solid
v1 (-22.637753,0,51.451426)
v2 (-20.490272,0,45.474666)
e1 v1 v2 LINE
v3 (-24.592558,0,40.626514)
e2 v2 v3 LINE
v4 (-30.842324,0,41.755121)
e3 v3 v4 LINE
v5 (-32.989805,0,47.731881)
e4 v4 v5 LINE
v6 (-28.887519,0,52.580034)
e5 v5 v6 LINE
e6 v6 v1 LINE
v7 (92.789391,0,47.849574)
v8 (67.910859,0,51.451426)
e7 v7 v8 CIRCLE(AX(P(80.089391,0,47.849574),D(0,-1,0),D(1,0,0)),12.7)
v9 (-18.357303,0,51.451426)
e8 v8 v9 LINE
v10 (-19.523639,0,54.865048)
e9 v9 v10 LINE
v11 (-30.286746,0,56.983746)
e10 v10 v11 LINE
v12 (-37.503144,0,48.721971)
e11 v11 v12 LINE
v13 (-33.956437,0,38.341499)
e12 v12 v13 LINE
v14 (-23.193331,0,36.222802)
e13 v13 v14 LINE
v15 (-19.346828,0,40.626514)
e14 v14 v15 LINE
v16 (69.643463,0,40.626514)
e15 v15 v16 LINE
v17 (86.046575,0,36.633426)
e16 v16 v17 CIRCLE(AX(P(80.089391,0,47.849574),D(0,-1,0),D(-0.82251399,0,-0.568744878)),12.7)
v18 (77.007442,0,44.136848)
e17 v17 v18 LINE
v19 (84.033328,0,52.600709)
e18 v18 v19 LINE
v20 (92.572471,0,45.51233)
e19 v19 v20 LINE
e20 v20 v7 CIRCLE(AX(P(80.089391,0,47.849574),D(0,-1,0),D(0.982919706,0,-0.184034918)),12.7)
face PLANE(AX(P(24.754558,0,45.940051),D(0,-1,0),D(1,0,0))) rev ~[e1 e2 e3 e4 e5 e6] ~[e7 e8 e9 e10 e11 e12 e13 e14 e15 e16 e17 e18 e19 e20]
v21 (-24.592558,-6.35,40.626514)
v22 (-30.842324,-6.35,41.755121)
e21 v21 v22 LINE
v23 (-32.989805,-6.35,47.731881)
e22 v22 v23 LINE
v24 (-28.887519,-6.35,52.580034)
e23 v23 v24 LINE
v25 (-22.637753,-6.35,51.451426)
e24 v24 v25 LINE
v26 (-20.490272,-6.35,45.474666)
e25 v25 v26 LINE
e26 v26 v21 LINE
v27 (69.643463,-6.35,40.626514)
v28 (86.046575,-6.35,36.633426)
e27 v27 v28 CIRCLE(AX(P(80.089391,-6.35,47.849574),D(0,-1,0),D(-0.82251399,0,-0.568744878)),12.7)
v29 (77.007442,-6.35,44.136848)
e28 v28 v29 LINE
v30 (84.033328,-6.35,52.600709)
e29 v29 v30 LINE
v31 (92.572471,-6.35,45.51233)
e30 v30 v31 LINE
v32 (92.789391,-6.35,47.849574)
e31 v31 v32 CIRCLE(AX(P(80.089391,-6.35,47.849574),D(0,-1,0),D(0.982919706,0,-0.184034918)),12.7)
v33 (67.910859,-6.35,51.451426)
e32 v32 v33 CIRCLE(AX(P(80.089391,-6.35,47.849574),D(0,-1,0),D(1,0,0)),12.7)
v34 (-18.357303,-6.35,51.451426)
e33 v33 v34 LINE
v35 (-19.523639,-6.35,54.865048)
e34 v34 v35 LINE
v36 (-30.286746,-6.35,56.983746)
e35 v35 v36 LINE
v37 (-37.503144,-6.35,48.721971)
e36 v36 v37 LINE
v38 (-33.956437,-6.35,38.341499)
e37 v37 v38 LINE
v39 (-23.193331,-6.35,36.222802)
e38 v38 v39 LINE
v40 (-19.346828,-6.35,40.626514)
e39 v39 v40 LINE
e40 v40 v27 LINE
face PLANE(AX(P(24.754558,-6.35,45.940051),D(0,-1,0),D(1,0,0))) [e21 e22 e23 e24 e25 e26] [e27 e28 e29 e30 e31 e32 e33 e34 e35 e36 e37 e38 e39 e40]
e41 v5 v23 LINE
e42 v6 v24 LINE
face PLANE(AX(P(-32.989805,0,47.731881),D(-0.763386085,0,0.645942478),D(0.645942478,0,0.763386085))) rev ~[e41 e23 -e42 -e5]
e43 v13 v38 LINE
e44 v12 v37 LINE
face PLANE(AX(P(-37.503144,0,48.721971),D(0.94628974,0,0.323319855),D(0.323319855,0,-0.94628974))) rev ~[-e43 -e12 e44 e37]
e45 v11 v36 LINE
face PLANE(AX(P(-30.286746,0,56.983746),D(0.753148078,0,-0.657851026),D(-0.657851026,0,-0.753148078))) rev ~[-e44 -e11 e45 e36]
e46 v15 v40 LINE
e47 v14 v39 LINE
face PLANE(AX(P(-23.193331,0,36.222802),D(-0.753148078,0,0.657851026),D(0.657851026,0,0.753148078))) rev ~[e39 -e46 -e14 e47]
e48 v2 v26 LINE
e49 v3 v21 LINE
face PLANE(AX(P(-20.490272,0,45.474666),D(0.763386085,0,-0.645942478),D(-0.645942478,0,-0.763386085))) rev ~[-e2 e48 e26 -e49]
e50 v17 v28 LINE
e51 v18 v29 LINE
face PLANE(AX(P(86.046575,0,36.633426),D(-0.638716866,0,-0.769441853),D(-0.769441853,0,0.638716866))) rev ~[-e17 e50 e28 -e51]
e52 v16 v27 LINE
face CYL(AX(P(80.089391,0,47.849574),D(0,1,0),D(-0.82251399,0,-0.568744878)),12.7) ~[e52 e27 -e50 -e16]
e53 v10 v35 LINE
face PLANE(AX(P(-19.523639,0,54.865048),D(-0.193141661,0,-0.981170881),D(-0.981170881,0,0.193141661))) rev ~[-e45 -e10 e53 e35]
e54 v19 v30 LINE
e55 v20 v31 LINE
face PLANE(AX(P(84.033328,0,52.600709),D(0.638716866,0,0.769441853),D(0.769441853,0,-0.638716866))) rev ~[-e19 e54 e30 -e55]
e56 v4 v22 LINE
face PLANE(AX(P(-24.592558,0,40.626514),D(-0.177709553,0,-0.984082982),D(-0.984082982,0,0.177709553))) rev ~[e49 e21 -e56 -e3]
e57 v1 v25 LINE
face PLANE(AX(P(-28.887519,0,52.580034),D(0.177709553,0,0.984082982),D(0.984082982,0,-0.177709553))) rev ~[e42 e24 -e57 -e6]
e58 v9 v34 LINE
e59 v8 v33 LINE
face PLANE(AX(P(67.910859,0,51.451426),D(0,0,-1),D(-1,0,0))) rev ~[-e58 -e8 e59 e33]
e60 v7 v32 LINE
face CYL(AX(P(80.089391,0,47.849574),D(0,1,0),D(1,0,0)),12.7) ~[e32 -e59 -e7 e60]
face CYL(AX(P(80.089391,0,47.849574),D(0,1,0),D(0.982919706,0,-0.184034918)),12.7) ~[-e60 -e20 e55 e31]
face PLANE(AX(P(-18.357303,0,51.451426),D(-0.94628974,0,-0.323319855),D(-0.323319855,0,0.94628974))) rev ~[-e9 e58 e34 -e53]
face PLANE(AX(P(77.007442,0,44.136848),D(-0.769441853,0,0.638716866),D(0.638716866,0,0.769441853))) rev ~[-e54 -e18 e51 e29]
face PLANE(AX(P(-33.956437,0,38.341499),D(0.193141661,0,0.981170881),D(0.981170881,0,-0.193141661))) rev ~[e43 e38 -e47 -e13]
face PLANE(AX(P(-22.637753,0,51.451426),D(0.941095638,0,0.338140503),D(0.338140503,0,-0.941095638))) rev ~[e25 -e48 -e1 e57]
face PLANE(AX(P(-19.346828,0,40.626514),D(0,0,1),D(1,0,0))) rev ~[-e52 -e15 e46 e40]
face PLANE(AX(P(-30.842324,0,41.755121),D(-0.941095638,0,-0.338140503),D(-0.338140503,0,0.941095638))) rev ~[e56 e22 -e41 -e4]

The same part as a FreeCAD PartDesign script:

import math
import FreeCAD as App
import Part
import Sketcher
from FreeCAD import Vector
Q = App.Units.Quantity


def add_polygon(sketch, points):
    """Adds a closed chain of lines whose ends are joined by coincident constraints."""
    first, n = sketch.GeometryCount, len(points)
    for a, b in zip(points, points[1:] + points[:1]):
        sketch.addGeometry(Part.LineSegment(App.Vector(*a, 0), App.Vector(*b, 0)), False)
    for i in range(n):
        sketch.addConstraint(Sketcher.Constraint("Coincident", first + i, 2, first + (i + 1) % n, 1))

doc = App.newDocument("Part")
params = doc.addObject("Spreadsheet::Sheet", "Params")
for row, (alias, value) in enumerate([
    ("sketch1_radius", "0.5 in"),
    ("pad1_length", "0.25 in"),
], start=1):
    params.set(f"A{row}", alias)
    params.set(f"B{row}", "=" + value)
    params.setAlias(f"B{row}", alias)

body = doc.addObject("PartDesign::Body", "Body")

sketch1 = body.newObject("Sketcher::SketchObject", "Sketch")
sketch1.AttachmentSupport = (doc.getObject("XZ_Plane"), [""])
sketch1.MapMode = "FlatFace"
sketch1.addGeometry(Part.ArcOfCircle(Part.Circle(Vector(80.1, 47.8, 0), Vector(0, 0, 1), 12.7), math.radians(-145), math.radians(-62)), False)
sketch1.addGeometry(Part.LineSegment(Vector(86, 36.6, 0), Vector(77, 44.1, 0)), False)
sketch1.addGeometry(Part.LineSegment(Vector(77, 44.1, 0), Vector(84, 52.6, 0)), False)
sketch1.addGeometry(Part.LineSegment(Vector(84, 52.6, 0), Vector(92.6, 45.5, 0)), False)
sketch1.addGeometry(Part.ArcOfCircle(Part.Circle(Vector(80.1, 47.8, 0), Vector(0, 0, 1), 12.7), math.radians(-10.6), math.radians(0)), False)
sketch1.addGeometry(Part.ArcOfCircle(Part.Circle(Vector(80.1, 47.8, 0), Vector(0, 0, 1), 12.7), math.radians(0), math.radians(164)), False)
sketch1.addGeometry(Part.LineSegment(Vector(67.9, 51.5, 0), Vector(-18.4, 51.5, 0)), False)
sketch1.addGeometry(Part.LineSegment(Vector(-18.4, 51.5, 0), Vector(-19.5, 54.9, 0)), False)
sketch1.addGeometry(Part.LineSegment(Vector(-19.5, 54.9, 0), Vector(-30.3, 57, 0)), False)
sketch1.addGeometry(Part.LineSegment(Vector(-30.3, 57, 0), Vector(-37.5, 48.7, 0)), False)
sketch1.addGeometry(Part.LineSegment(Vector(-37.5, 48.7, 0), Vector(-34, 38.3, 0)), False)
sketch1.addGeometry(Part.LineSegment(Vector(-34, 38.3, 0), Vector(-23.2, 36.2, 0)), False)
sketch1.addGeometry(Part.LineSegment(Vector(-23.2, 36.2, 0), Vector(-19.3, 40.6, 0)), False)
sketch1.addGeometry(Part.LineSegment(Vector(-19.3, 40.6, 0), Vector(69.6, 40.6, 0)), False)
add_polygon(sketch1, [(-22.6, 51.5), (-20.5, 45.5), (-24.6, 40.6), (-30.8, 41.8), (-33, 47.7), (-28.9, 52.6)])
sketch1.addConstraint([
    Sketcher.Constraint("Coincident", 0, 2, 1, 1),
    Sketcher.Constraint("Coincident", 1, 2, 2, 1),
    Sketcher.Constraint("Coincident", 2, 2, 3, 1),
    Sketcher.Constraint("Coincident", 3, 2, 4, 1),
    Sketcher.Constraint("Tangent", 4, 2, 5, 1),
    Sketcher.Constraint("Coincident", 5, 2, 6, 1),
    Sketcher.Constraint("Coincident", 6, 2, 7, 1),
    Sketcher.Constraint("Coincident", 7, 2, 8, 1),
    Sketcher.Constraint("Coincident", 8, 2, 9, 1),
    Sketcher.Constraint("Coincident", 9, 2, 10, 1),
    Sketcher.Constraint("Coincident", 10, 2, 11, 1),
    Sketcher.Constraint("Coincident", 11, 2, 12, 1),
    Sketcher.Constraint("Coincident", 12, 2, 13, 1),
    Sketcher.Constraint("Coincident", 13, 2, 0, 1),
    Sketcher.Constraint("Horizontal", 6),
    Sketcher.Constraint("Horizontal", 13),
    Sketcher.Constraint("Coincident", 4, 3, 0, 3),
    Sketcher.Constraint("Equal", 0, 4),
    Sketcher.Constraint("Equal", 4, 5),
    Sketcher.Constraint("Perpendicular", 1, 2),
    Sketcher.Constraint("Perpendicular", 2, 3),
    Sketcher.Constraint("Parallel", 7, 10),
    Sketcher.Constraint("Parallel", 8, 11),
    Sketcher.Constraint("Parallel", 9, 12),
    Sketcher.Constraint("Parallel", 14, 17),
    Sketcher.Constraint("Parallel", 15, 18),
    Sketcher.Constraint("Parallel", 16, 19),
    Sketcher.Constraint("Horizontal", 5, 3, 4, 2),
    Sketcher.Constraint("Horizontal", 13, 2, 15, 2),
    Sketcher.Constraint("Horizontal", 6, 2, 19, 2),
    Sketcher.Constraint("Equal", 8, 9),
    Sketcher.Constraint("Equal", 9, 10),
    Sketcher.Constraint("Equal", 10, 11),
    Sketcher.Constraint("Equal", 14, 15),
    Sketcher.Constraint("Equal", 15, 16),
    Sketcher.Constraint("Equal", 16, 17),
    Sketcher.Constraint("Radius", 0, Q("0.5 in")),
    Sketcher.Constraint("DistanceY", 14, 2, 7, 2, Q("0.3697001 in")),
    Sketcher.Constraint("DistanceY", 10, 2, 17, 2, Q("0.3697001 in")),
    Sketcher.Constraint("Distance", 2, Q("11 mm")),
    Sketcher.Constraint("DistanceX", 6, 2, 6, 1, Q("86.268162 mm")),
    Sketcher.Constraint("DistanceX", 13, 1, 13, 2, Q("88.990291 mm")),
    Sketcher.Constraint("DistanceY", -1, 1, 10, 2, Q("38.341499 mm")),
    Sketcher.Constraint("DistanceY", -1, 1, 11, 2, Q("36.222802 mm")),
    Sketcher.Constraint("DistanceY", 1, 2, 7, 2, Q("10.7282 mm")),
    Sketcher.Constraint("DistanceX", 9, 2, 8, 2, Q("7.216399 mm")),
    Sketcher.Constraint("Distance", 1, Q("11.747649 mm")),
    Sketcher.Constraint("Distance", 3, Q("11.097841 mm")),
    Sketcher.Constraint("DistanceX", -1, 1, 0, 3, Q("80.089391 mm")),
    Sketcher.Constraint("DistanceY", -1, 1, 1, 2, Q("44.136848 mm")),
    Sketcher.Constraint("DistanceY", -1, 1, 2, 2, Q("52.600709 mm")),
    Sketcher.Constraint("DistanceX", -1, 1, 5, 2, Q("67.910859 mm")),
    Sketcher.Constraint("DistanceX", 7, 2, -1, 1, Q("19.523639 mm")),
    Sketcher.Constraint("DistanceX", 14, 2, -1, 1, Q("20.490272 mm")),
    Sketcher.Constraint("DistanceX", 18, 2, -1, 1, Q("28.887519 mm")),
])
sketch1.setExpression("Constraints[42]", "Params.sketch1_radius")
pad1 = body.newObject("PartDesign::Pad", "Pad")
pad1.Profile = sketch1
pad1.setExpression("Length", "Params.pad1_length")

doc.recompute()
